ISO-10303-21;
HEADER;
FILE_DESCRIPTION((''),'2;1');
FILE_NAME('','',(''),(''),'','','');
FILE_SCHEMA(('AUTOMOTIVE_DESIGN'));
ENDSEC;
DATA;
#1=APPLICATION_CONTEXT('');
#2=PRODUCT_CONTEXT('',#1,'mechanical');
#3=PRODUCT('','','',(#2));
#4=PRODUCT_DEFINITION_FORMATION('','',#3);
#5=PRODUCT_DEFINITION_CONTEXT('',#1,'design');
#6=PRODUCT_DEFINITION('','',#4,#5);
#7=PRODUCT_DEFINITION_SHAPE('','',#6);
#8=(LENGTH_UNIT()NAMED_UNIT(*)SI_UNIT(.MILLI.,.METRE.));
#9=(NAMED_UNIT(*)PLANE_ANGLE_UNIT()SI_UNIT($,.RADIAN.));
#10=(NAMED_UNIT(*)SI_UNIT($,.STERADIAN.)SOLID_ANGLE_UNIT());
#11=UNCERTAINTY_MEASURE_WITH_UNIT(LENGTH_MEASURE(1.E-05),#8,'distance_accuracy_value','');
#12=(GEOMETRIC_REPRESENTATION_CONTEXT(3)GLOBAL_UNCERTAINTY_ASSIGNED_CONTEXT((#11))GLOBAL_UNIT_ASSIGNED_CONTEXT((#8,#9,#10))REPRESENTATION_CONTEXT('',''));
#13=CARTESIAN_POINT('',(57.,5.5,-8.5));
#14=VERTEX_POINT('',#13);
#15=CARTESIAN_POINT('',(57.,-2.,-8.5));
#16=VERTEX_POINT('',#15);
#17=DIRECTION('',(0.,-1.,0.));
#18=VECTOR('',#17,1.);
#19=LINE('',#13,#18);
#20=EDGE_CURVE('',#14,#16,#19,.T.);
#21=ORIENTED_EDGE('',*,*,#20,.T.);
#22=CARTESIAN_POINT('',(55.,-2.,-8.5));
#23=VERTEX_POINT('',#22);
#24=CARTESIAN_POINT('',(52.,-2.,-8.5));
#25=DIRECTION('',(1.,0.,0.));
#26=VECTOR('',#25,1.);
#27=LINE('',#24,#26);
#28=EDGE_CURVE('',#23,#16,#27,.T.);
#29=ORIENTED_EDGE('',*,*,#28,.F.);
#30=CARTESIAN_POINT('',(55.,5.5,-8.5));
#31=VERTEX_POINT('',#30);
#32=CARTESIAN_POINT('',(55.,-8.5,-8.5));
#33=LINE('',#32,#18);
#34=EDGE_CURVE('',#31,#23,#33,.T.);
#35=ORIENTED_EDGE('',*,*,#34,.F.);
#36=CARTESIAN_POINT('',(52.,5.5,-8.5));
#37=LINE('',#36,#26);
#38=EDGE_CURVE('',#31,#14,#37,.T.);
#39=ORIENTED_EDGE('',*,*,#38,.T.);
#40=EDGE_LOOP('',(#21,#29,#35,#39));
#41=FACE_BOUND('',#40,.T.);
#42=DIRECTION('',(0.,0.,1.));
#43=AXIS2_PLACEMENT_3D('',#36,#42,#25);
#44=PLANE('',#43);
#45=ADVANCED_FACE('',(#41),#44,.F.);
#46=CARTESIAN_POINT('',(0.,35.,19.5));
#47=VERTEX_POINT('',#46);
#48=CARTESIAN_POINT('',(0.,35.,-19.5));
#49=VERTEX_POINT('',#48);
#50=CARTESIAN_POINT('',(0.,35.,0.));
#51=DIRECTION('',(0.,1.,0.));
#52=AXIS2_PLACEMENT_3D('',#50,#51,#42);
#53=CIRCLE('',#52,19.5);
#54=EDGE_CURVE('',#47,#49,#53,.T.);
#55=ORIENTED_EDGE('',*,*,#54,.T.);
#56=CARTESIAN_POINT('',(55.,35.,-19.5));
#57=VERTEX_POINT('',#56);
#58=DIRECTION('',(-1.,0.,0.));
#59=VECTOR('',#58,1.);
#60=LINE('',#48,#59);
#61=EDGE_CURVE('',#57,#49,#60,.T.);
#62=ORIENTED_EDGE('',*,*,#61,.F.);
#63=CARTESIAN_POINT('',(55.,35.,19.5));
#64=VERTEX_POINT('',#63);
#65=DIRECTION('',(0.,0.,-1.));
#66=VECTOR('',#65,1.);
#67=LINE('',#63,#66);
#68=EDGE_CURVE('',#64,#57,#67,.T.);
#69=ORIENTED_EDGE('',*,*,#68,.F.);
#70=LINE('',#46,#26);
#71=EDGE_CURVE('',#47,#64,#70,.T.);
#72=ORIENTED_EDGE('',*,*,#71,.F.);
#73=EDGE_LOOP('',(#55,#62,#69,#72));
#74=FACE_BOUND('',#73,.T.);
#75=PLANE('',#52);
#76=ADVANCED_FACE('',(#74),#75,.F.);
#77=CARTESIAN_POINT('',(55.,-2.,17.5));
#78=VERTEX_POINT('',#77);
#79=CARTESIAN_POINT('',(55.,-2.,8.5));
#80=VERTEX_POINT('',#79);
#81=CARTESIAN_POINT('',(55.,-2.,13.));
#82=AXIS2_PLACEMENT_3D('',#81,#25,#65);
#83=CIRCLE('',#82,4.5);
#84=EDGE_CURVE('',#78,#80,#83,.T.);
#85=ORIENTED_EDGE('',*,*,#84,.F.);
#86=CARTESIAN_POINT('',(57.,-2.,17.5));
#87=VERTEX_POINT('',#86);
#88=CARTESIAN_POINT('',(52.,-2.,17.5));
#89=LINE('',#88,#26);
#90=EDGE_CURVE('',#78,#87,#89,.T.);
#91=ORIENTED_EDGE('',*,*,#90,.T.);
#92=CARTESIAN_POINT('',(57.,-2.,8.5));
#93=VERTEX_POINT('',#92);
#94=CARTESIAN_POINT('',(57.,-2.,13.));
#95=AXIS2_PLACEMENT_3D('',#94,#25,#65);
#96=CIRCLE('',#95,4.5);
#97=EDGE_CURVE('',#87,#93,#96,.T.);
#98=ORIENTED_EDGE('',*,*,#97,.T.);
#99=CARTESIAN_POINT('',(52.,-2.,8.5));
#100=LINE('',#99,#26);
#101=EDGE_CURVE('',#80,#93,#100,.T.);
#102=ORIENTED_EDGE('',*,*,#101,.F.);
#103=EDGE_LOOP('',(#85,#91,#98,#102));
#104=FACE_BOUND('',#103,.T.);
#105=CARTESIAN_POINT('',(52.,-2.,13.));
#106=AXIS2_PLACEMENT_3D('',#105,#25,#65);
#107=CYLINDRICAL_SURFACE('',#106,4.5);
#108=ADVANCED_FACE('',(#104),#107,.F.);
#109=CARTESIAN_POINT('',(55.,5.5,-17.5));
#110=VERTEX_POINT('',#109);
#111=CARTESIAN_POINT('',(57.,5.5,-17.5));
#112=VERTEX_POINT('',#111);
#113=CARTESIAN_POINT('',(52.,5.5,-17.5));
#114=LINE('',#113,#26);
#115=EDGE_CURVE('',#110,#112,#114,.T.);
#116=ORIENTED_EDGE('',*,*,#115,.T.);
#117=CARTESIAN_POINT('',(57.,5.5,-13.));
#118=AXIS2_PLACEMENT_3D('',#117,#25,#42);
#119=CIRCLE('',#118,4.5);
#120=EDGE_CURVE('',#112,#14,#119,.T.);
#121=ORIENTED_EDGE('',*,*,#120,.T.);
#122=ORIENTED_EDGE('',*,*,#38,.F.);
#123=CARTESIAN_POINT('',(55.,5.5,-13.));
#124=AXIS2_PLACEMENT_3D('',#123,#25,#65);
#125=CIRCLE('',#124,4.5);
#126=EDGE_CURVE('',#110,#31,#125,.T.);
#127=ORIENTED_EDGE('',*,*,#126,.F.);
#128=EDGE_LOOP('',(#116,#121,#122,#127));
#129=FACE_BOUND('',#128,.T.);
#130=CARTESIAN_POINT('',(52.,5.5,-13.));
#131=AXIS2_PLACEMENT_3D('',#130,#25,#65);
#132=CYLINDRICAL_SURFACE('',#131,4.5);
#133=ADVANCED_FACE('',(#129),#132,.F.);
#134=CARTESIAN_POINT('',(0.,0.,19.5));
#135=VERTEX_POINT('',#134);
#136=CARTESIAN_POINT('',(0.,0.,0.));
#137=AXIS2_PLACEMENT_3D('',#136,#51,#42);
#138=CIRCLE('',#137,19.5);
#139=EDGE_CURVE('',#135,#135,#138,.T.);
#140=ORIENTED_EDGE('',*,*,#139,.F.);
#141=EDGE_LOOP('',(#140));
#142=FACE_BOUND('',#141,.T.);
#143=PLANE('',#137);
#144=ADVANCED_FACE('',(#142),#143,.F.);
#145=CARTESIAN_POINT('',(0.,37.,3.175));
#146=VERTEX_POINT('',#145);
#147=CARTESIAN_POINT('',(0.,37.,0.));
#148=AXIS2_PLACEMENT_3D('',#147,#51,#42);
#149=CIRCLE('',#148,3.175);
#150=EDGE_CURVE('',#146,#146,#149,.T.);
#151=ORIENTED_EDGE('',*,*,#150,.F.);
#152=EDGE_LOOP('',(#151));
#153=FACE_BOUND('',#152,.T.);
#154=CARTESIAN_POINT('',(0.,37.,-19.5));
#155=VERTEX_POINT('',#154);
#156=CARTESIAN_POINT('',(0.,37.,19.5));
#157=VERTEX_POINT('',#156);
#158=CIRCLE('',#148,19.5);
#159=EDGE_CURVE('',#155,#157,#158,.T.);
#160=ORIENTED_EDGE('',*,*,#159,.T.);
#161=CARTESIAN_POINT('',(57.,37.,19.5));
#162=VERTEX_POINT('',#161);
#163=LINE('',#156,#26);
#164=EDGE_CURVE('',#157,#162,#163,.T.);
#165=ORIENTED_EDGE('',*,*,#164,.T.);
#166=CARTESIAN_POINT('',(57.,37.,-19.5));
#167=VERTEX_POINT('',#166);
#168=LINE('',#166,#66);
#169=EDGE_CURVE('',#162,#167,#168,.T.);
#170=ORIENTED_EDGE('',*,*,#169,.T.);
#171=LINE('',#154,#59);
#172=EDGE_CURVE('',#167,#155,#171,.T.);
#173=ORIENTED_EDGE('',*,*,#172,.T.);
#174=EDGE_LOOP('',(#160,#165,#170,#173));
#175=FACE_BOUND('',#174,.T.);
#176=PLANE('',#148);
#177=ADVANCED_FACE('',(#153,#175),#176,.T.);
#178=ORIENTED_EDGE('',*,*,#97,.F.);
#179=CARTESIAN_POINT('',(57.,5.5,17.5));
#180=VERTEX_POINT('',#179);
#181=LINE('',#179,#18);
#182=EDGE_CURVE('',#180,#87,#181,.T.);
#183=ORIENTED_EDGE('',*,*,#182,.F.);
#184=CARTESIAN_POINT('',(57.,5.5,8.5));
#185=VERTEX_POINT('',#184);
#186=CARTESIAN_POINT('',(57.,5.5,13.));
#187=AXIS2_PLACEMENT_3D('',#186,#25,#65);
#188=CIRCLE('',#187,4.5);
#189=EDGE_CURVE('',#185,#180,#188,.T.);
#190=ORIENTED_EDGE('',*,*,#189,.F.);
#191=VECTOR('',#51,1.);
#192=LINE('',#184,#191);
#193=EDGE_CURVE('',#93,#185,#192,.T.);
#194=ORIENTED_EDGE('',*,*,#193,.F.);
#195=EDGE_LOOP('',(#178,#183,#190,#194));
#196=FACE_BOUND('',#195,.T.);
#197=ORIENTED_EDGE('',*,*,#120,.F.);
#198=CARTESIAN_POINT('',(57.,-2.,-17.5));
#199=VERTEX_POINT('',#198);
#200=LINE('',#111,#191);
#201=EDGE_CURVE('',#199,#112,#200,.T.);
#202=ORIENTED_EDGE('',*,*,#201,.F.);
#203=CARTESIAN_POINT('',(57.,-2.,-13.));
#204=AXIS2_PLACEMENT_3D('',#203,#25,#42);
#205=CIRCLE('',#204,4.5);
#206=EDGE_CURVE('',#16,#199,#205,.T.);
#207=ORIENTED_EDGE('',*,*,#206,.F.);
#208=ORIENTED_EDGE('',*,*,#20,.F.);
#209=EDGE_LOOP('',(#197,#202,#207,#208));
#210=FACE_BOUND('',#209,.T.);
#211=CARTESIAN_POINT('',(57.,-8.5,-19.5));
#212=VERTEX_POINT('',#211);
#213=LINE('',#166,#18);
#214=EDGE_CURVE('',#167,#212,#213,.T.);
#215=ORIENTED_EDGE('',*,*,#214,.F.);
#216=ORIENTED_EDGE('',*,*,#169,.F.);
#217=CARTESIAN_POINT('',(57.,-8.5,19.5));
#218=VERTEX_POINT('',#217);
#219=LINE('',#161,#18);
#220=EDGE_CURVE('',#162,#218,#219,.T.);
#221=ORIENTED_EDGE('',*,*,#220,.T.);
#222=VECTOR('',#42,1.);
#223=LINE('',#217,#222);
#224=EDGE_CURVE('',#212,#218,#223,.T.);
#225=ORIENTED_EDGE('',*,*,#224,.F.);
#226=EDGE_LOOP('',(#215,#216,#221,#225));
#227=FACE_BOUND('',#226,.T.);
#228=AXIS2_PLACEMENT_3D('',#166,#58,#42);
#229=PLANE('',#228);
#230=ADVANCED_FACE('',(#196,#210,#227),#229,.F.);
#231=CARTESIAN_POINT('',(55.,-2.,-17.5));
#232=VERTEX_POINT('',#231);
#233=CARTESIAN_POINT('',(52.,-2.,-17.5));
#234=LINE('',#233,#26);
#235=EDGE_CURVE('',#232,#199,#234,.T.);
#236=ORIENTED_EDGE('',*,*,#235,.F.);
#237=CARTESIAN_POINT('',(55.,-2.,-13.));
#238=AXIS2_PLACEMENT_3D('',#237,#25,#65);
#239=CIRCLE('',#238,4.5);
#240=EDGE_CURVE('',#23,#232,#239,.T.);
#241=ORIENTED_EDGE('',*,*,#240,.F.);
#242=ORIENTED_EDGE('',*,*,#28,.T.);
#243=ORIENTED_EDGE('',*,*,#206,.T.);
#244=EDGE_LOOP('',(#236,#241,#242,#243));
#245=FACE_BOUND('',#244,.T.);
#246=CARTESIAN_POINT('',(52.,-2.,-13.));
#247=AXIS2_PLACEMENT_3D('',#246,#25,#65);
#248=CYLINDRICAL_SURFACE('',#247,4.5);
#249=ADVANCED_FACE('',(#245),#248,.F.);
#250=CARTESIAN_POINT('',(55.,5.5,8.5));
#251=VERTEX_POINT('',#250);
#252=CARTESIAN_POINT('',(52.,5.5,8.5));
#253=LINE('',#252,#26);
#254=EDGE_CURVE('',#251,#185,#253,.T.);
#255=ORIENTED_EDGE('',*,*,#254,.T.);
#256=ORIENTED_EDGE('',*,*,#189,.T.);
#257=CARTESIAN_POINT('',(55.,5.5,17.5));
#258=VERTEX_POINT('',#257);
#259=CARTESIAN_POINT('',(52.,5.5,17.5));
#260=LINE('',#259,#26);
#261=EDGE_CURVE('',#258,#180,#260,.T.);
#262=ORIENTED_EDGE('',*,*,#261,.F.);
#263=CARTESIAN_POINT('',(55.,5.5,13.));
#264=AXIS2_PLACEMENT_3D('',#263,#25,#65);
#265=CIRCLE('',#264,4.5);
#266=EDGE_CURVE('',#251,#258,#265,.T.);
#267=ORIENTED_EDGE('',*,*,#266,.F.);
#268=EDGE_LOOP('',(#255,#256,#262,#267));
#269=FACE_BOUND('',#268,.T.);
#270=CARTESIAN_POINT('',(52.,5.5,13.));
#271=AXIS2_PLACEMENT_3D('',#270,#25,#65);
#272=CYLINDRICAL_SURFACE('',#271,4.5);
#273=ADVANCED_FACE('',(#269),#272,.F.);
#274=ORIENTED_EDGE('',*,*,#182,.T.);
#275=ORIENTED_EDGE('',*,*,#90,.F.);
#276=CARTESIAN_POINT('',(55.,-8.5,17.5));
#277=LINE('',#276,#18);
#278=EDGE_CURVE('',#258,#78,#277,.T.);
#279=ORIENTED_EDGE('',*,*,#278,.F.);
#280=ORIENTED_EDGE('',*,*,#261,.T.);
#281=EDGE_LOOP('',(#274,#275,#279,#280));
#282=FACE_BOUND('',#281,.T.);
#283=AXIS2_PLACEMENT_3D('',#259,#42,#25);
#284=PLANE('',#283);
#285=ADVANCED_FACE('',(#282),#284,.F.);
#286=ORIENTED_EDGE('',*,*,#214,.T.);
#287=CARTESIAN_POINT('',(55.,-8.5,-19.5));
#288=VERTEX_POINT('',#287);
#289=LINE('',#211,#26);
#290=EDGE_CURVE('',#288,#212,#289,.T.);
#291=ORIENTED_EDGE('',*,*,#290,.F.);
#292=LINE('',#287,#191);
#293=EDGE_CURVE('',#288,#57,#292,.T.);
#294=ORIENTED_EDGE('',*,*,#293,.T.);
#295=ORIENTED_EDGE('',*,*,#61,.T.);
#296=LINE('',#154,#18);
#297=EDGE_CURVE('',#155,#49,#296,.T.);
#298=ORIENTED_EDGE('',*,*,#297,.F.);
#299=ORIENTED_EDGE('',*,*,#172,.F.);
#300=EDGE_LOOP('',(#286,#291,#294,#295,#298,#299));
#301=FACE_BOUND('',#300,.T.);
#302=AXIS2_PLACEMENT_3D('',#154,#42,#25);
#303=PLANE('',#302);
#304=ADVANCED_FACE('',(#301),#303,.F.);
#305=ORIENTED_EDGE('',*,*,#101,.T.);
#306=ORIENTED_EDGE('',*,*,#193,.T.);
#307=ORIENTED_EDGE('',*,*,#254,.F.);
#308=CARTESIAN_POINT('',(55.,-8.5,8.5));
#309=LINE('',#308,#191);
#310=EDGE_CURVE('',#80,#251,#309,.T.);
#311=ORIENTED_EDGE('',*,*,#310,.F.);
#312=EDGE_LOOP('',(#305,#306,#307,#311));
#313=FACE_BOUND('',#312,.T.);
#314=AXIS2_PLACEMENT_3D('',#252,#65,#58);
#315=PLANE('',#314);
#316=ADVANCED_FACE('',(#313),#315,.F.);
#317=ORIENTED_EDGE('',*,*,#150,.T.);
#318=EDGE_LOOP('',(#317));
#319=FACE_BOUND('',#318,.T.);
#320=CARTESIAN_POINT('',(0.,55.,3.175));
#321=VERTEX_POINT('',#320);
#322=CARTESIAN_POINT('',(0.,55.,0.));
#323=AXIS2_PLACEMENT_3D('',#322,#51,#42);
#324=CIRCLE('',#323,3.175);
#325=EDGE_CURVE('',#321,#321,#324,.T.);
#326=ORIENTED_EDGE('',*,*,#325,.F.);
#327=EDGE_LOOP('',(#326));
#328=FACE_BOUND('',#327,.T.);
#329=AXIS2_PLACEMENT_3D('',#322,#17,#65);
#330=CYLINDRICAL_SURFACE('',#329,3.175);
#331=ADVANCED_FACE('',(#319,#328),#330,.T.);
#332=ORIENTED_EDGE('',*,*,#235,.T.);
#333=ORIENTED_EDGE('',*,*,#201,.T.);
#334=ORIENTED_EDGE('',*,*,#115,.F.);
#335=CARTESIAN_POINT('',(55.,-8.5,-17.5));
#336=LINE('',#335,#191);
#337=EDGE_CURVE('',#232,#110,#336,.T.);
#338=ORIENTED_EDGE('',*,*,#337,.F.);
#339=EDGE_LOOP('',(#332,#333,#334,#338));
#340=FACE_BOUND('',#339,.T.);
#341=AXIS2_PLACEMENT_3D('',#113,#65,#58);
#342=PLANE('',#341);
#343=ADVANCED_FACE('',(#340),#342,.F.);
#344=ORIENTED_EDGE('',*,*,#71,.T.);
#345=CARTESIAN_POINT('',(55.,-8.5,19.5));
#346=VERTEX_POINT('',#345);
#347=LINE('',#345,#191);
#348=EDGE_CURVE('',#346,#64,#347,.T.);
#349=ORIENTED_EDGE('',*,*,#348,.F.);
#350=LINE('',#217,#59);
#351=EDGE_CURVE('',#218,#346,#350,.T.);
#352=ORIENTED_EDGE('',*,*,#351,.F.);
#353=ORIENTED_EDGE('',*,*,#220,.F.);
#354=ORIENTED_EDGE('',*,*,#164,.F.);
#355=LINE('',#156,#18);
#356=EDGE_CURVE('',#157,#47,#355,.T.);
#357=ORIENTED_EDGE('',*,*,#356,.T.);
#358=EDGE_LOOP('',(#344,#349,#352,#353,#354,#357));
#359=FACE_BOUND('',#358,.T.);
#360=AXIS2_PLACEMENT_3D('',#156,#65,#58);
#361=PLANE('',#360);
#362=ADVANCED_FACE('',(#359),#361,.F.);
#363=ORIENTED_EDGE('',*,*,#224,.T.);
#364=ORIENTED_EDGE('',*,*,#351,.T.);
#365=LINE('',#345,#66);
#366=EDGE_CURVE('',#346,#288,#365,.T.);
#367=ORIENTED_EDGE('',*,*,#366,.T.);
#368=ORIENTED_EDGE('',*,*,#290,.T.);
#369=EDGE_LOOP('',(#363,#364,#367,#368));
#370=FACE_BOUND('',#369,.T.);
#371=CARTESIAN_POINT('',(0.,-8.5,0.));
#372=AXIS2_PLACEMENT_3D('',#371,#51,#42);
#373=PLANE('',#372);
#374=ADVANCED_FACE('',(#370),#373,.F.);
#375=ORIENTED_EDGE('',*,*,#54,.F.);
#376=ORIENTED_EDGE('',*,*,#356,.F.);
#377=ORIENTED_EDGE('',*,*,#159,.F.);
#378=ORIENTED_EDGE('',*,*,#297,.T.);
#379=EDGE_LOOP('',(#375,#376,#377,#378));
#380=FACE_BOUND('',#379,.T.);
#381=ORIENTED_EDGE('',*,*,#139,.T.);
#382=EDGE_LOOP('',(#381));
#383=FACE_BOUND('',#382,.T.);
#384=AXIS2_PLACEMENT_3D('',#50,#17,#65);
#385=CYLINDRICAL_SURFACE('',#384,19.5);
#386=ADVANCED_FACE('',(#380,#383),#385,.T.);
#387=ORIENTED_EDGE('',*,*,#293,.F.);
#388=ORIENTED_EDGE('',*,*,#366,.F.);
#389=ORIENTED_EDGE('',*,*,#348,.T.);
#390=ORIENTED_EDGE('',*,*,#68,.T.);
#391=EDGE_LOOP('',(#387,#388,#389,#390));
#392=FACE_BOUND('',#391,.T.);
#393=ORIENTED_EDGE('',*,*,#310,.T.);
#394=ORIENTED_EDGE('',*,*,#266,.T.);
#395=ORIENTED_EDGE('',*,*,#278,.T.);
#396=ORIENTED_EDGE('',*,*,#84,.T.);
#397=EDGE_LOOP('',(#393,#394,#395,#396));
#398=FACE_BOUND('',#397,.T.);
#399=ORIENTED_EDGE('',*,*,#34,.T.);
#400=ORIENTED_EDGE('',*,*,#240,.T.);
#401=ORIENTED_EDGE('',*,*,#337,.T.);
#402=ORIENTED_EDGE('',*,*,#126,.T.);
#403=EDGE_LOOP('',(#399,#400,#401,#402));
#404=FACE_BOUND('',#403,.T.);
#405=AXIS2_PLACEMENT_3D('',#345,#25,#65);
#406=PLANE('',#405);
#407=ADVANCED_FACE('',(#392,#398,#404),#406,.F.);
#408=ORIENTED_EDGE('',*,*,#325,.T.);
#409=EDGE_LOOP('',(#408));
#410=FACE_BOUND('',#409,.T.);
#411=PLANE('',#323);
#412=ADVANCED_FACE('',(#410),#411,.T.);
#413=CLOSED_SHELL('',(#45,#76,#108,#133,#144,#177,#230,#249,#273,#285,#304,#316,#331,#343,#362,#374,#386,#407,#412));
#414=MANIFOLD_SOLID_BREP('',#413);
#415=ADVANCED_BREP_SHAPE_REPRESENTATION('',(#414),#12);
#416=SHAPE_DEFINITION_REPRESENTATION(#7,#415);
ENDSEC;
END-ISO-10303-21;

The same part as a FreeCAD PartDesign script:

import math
import FreeCAD as App
import Part
import Sketcher
Q = App.Units.Quantity

doc = App.newDocument("Part")
body = doc.addObject("PartDesign::Body", "Body")

# Sketch on XZ plane
sketch1 = body.newObject("Sketcher::SketchObject", "Sketch")
sketch1.AttachmentSupport = (doc.getObject("XZ_Plane"), [""])
sketch1.MapMode = "FlatFace"
sketch1.addGeometry(Part.Circle(App.Vector(0, 0, 0), App.Vector(0, 0, 1), 20), False)
sketch1.addConstraint([
    Sketcher.Constraint("Coincident", 0, 3, -1, 1),
    Sketcher.Constraint("Diameter", 0, Q("39 mm")),
])
pad1 = body.newObject("PartDesign::Pad", "Pad")
pad1.Profile = sketch1
pad1.Length = 35
pad1.Reversed = True

# Sketch on XZ plane
sketch2 = body.newObject("Sketcher::SketchObject", "Sketch001")
sketch2.AttachmentSupport = (doc.getObject("XZ_Plane"), [""])
sketch2.MapMode = "FlatFace"
sketch2.AttachmentOffset = App.Placement(App.Vector(0, 0, -35), App.Rotation())
sketch2.addGeometry(Part.Circle(App.Vector(0, 0, 0), App.Vector(0, 0, 1), 3.2), False)
sketch2.addConstraint([
    Sketcher.Constraint("Coincident", 0, 3, -1, 1),
    Sketcher.Constraint("Diameter", 0, Q("6.35 mm")),
])
pad2 = body.newObject("PartDesign::Pad", "Pad001")
pad2.Profile = sketch2
pad2.Length = 20
pad2.Reversed = True

# Sketch on XZ plane
sketch3 = body.newObject("Sketcher::SketchObject", "Sketch002")
sketch3.AttachmentSupport = (doc.getObject("XZ_Plane"), [""])
sketch3.MapMode = "FlatFace"
sketch3.AttachmentOffset = App.Placement(App.Vector(0, 0, -35), App.Rotation())
sketch3.addGeometry([
    Part.LineSegment(App.Vector(57, -20, 0), App.Vector(0, -20, 0)),
    Part.ArcOfCircle(Part.Circle(App.Vector(0, 0, 0), App.Vector(0, 0, 1), 20), math.radians(90), math.radians(270)),
    Part.LineSegment(App.Vector(0, 20, 0), App.Vector(57, 20, 0)),
    Part.LineSegment(App.Vector(57, 20, 0), App.Vector(57, -20, 0)),
], False)
sketch3.addConstraint([
    Sketcher.Constraint("Tangent", 0, 2, 1, 2),
    Sketcher.Constraint("Tangent", 1, 1, 2, 1),
    Sketcher.Constraint("Coincident", 2, 2, 3, 1),
    Sketcher.Constraint("Coincident", 3, 2, 0, 1),
    Sketcher.Constraint("Horizontal", 0),
    Sketcher.Constraint("Horizontal", 2),
    Sketcher.Constraint("Vertical", 3),
    Sketcher.Constraint("Coincident", 1, 3, -1, 1),
    Sketcher.Constraint("Radius", 1, Q("19.5 mm")),
    Sketcher.Constraint("DistanceX", 0, 2, 0, 1, Q("57 mm")),
])
pad3 = body.newObject("PartDesign::Pad", "Pad002")
pad3.Profile = sketch3
pad3.Length = 2
pad3.Reversed = True

# Sketch on XZ plane
sketch4 = body.newObject("Sketcher::SketchObject", "Sketch003")
sketch4.AttachmentSupport = (doc.getObject("XZ_Plane"), [""])
sketch4.MapMode = "FlatFace"
sketch4.AttachmentOffset = App.Placement(App.Vector(0, 0, -35), App.Rotation())
sketch4.addGeometry([
    Part.LineSegment(App.Vector(55, 19.5, 0), App.Vector(55, -19.5, 0)),
    Part.LineSegment(App.Vector(55, -19.5, 0), App.Vector(57, -19.5, 0)),
    Part.LineSegment(App.Vector(57, -19.5, 0), App.Vector(57, 19.5, 0)),
    Part.LineSegment(App.Vector(57, 19.5, 0), App.Vector(55, 19.5, 0)),
], False)
sketch4.addConstraint([
    Sketcher.Constraint("Coincident", 0, 2, 1, 1),
    Sketcher.Constraint("Coincident", 1, 2, 2, 1),
    Sketcher.Constraint("Coincident", 2, 2, 3, 1),
    Sketcher.Constraint("Coincident", 3, 2, 0, 1),
    Sketcher.Constraint("Vertical", 0),
    Sketcher.Constraint("Horizontal", 1),
    Sketcher.Constraint("Vertical", 2),
    Sketcher.Constraint("Horizontal", 3),
    Sketcher.Constraint("DistanceX", 1, 1, 1, 2, Q("2 mm")),
    Sketcher.Constraint("DistanceY", 0, 2, 0, 1, Q("39 mm")),
    Sketcher.Constraint("DistanceX", -1, 1, 0, 2, Q("55 mm")),
    Sketcher.Constraint("DistanceY", 0, 2, -1, 1, Q("19.5 mm")),
])
pad4 = body.newObject("PartDesign::Pad", "Pad003")
pad4.Profile = sketch4
pad4.Length = 43.5

# Sketch on YZ plane
sketch5 = body.newObject("Sketcher::SketchObject", "Sketch004")
sketch5.AttachmentSupport = (doc.getObject("YZ_Plane"), [""])
sketch5.MapMode = "FlatFace"
sketch5.AttachmentOffset = App.Placement(App.Vector(0, 0, 57), App.Rotation())
sketch5.addGeometry([
    Part.LineSegment(App.Vector(-2, 8.5, 0), App.Vector(5.5, 8.5, 0)),  # 0
    Part.ArcOfCircle(Part.Circle(App.Vector(5.5, 13, 0), App.Vector(0, 0, 1), 4.5), math.radians(-90), math.radians(90)),  # 1
    Part.LineSegment(App.Vector(5.5, 17.5, 0), App.Vector(-2, 17.5, 0)),  # 2
    Part.ArcOfCircle(Part.Circle(App.Vector(-2, 13, 0), App.Vector(0, 0, 1), 4.5), math.radians(90), math.radians(270)),  # 3
    Part.LineSegment(App.Vector(5.5, -8.5, 0), App.Vector(-2, -8.5, 0)),  # 4
    Part.ArcOfCircle(Part.Circle(App.Vector(-2, -13, 0), App.Vector(0, 0, 1), 4.5), math.radians(90), math.radians(270)),  # 5
    Part.LineSegment(App.Vector(-2, -17.5, 0), App.Vector(5.5, -17.5, 0)),  # 6
    Part.ArcOfCircle(Part.Circle(App.Vector(5.5, -13, 0), App.Vector(0, 0, 1), 4.5), math.radians(-90), math.radians(90)),  # 7
], False)
sketch5.addConstraint([
    Sketcher.Constraint("Tangent", 0, 2, 1, 1),
    Sketcher.Constraint("Tangent", 1, 2, 2, 1),
    Sketcher.Constraint("Tangent", 2, 2, 3, 1),
    Sketcher.Constraint("Tangent", 3, 2, 0, 1),
    Sketcher.Constraint("Tangent", 4, 2, 5, 1),
    Sketcher.Constraint("Tangent", 5, 2, 6, 1),
    Sketcher.Constraint("Tangent", 6, 2, 7, 1),
    Sketcher.Constraint("Tangent", 7, 2, 4, 1),
    Sketcher.Constraint("Horizontal", 0),
    Sketcher.Constraint("Horizontal", 2),
    Sketcher.Constraint("Horizontal", 4),
    Sketcher.Constraint("Horizontal", 6),
    Sketcher.Constraint("Equal", 3, 5),
    Sketcher.Constraint("Symmetric", 3, 3, 5, 3, -1),
    Sketcher.Constraint("Vertical", 1, 3, 7, 3),
    Sketcher.Constraint("Radius", 1, Q("4.5 mm")),
    Sketcher.Constraint("DistanceX", 0, 1, 0, 2, Q("7.5 mm")),
    Sketcher.Constraint("DistanceY", -1, 1, 1, 3, Q("13 mm")),
    Sketcher.Constraint("DistanceX", 3, 3, -1, 1, Q("2 mm")),
])
pocket1 = body.newObject("PartDesign::Pocket", "Pocket")
pocket1.Profile = sketch5
pocket1.Length = 5

doc.recompute()
